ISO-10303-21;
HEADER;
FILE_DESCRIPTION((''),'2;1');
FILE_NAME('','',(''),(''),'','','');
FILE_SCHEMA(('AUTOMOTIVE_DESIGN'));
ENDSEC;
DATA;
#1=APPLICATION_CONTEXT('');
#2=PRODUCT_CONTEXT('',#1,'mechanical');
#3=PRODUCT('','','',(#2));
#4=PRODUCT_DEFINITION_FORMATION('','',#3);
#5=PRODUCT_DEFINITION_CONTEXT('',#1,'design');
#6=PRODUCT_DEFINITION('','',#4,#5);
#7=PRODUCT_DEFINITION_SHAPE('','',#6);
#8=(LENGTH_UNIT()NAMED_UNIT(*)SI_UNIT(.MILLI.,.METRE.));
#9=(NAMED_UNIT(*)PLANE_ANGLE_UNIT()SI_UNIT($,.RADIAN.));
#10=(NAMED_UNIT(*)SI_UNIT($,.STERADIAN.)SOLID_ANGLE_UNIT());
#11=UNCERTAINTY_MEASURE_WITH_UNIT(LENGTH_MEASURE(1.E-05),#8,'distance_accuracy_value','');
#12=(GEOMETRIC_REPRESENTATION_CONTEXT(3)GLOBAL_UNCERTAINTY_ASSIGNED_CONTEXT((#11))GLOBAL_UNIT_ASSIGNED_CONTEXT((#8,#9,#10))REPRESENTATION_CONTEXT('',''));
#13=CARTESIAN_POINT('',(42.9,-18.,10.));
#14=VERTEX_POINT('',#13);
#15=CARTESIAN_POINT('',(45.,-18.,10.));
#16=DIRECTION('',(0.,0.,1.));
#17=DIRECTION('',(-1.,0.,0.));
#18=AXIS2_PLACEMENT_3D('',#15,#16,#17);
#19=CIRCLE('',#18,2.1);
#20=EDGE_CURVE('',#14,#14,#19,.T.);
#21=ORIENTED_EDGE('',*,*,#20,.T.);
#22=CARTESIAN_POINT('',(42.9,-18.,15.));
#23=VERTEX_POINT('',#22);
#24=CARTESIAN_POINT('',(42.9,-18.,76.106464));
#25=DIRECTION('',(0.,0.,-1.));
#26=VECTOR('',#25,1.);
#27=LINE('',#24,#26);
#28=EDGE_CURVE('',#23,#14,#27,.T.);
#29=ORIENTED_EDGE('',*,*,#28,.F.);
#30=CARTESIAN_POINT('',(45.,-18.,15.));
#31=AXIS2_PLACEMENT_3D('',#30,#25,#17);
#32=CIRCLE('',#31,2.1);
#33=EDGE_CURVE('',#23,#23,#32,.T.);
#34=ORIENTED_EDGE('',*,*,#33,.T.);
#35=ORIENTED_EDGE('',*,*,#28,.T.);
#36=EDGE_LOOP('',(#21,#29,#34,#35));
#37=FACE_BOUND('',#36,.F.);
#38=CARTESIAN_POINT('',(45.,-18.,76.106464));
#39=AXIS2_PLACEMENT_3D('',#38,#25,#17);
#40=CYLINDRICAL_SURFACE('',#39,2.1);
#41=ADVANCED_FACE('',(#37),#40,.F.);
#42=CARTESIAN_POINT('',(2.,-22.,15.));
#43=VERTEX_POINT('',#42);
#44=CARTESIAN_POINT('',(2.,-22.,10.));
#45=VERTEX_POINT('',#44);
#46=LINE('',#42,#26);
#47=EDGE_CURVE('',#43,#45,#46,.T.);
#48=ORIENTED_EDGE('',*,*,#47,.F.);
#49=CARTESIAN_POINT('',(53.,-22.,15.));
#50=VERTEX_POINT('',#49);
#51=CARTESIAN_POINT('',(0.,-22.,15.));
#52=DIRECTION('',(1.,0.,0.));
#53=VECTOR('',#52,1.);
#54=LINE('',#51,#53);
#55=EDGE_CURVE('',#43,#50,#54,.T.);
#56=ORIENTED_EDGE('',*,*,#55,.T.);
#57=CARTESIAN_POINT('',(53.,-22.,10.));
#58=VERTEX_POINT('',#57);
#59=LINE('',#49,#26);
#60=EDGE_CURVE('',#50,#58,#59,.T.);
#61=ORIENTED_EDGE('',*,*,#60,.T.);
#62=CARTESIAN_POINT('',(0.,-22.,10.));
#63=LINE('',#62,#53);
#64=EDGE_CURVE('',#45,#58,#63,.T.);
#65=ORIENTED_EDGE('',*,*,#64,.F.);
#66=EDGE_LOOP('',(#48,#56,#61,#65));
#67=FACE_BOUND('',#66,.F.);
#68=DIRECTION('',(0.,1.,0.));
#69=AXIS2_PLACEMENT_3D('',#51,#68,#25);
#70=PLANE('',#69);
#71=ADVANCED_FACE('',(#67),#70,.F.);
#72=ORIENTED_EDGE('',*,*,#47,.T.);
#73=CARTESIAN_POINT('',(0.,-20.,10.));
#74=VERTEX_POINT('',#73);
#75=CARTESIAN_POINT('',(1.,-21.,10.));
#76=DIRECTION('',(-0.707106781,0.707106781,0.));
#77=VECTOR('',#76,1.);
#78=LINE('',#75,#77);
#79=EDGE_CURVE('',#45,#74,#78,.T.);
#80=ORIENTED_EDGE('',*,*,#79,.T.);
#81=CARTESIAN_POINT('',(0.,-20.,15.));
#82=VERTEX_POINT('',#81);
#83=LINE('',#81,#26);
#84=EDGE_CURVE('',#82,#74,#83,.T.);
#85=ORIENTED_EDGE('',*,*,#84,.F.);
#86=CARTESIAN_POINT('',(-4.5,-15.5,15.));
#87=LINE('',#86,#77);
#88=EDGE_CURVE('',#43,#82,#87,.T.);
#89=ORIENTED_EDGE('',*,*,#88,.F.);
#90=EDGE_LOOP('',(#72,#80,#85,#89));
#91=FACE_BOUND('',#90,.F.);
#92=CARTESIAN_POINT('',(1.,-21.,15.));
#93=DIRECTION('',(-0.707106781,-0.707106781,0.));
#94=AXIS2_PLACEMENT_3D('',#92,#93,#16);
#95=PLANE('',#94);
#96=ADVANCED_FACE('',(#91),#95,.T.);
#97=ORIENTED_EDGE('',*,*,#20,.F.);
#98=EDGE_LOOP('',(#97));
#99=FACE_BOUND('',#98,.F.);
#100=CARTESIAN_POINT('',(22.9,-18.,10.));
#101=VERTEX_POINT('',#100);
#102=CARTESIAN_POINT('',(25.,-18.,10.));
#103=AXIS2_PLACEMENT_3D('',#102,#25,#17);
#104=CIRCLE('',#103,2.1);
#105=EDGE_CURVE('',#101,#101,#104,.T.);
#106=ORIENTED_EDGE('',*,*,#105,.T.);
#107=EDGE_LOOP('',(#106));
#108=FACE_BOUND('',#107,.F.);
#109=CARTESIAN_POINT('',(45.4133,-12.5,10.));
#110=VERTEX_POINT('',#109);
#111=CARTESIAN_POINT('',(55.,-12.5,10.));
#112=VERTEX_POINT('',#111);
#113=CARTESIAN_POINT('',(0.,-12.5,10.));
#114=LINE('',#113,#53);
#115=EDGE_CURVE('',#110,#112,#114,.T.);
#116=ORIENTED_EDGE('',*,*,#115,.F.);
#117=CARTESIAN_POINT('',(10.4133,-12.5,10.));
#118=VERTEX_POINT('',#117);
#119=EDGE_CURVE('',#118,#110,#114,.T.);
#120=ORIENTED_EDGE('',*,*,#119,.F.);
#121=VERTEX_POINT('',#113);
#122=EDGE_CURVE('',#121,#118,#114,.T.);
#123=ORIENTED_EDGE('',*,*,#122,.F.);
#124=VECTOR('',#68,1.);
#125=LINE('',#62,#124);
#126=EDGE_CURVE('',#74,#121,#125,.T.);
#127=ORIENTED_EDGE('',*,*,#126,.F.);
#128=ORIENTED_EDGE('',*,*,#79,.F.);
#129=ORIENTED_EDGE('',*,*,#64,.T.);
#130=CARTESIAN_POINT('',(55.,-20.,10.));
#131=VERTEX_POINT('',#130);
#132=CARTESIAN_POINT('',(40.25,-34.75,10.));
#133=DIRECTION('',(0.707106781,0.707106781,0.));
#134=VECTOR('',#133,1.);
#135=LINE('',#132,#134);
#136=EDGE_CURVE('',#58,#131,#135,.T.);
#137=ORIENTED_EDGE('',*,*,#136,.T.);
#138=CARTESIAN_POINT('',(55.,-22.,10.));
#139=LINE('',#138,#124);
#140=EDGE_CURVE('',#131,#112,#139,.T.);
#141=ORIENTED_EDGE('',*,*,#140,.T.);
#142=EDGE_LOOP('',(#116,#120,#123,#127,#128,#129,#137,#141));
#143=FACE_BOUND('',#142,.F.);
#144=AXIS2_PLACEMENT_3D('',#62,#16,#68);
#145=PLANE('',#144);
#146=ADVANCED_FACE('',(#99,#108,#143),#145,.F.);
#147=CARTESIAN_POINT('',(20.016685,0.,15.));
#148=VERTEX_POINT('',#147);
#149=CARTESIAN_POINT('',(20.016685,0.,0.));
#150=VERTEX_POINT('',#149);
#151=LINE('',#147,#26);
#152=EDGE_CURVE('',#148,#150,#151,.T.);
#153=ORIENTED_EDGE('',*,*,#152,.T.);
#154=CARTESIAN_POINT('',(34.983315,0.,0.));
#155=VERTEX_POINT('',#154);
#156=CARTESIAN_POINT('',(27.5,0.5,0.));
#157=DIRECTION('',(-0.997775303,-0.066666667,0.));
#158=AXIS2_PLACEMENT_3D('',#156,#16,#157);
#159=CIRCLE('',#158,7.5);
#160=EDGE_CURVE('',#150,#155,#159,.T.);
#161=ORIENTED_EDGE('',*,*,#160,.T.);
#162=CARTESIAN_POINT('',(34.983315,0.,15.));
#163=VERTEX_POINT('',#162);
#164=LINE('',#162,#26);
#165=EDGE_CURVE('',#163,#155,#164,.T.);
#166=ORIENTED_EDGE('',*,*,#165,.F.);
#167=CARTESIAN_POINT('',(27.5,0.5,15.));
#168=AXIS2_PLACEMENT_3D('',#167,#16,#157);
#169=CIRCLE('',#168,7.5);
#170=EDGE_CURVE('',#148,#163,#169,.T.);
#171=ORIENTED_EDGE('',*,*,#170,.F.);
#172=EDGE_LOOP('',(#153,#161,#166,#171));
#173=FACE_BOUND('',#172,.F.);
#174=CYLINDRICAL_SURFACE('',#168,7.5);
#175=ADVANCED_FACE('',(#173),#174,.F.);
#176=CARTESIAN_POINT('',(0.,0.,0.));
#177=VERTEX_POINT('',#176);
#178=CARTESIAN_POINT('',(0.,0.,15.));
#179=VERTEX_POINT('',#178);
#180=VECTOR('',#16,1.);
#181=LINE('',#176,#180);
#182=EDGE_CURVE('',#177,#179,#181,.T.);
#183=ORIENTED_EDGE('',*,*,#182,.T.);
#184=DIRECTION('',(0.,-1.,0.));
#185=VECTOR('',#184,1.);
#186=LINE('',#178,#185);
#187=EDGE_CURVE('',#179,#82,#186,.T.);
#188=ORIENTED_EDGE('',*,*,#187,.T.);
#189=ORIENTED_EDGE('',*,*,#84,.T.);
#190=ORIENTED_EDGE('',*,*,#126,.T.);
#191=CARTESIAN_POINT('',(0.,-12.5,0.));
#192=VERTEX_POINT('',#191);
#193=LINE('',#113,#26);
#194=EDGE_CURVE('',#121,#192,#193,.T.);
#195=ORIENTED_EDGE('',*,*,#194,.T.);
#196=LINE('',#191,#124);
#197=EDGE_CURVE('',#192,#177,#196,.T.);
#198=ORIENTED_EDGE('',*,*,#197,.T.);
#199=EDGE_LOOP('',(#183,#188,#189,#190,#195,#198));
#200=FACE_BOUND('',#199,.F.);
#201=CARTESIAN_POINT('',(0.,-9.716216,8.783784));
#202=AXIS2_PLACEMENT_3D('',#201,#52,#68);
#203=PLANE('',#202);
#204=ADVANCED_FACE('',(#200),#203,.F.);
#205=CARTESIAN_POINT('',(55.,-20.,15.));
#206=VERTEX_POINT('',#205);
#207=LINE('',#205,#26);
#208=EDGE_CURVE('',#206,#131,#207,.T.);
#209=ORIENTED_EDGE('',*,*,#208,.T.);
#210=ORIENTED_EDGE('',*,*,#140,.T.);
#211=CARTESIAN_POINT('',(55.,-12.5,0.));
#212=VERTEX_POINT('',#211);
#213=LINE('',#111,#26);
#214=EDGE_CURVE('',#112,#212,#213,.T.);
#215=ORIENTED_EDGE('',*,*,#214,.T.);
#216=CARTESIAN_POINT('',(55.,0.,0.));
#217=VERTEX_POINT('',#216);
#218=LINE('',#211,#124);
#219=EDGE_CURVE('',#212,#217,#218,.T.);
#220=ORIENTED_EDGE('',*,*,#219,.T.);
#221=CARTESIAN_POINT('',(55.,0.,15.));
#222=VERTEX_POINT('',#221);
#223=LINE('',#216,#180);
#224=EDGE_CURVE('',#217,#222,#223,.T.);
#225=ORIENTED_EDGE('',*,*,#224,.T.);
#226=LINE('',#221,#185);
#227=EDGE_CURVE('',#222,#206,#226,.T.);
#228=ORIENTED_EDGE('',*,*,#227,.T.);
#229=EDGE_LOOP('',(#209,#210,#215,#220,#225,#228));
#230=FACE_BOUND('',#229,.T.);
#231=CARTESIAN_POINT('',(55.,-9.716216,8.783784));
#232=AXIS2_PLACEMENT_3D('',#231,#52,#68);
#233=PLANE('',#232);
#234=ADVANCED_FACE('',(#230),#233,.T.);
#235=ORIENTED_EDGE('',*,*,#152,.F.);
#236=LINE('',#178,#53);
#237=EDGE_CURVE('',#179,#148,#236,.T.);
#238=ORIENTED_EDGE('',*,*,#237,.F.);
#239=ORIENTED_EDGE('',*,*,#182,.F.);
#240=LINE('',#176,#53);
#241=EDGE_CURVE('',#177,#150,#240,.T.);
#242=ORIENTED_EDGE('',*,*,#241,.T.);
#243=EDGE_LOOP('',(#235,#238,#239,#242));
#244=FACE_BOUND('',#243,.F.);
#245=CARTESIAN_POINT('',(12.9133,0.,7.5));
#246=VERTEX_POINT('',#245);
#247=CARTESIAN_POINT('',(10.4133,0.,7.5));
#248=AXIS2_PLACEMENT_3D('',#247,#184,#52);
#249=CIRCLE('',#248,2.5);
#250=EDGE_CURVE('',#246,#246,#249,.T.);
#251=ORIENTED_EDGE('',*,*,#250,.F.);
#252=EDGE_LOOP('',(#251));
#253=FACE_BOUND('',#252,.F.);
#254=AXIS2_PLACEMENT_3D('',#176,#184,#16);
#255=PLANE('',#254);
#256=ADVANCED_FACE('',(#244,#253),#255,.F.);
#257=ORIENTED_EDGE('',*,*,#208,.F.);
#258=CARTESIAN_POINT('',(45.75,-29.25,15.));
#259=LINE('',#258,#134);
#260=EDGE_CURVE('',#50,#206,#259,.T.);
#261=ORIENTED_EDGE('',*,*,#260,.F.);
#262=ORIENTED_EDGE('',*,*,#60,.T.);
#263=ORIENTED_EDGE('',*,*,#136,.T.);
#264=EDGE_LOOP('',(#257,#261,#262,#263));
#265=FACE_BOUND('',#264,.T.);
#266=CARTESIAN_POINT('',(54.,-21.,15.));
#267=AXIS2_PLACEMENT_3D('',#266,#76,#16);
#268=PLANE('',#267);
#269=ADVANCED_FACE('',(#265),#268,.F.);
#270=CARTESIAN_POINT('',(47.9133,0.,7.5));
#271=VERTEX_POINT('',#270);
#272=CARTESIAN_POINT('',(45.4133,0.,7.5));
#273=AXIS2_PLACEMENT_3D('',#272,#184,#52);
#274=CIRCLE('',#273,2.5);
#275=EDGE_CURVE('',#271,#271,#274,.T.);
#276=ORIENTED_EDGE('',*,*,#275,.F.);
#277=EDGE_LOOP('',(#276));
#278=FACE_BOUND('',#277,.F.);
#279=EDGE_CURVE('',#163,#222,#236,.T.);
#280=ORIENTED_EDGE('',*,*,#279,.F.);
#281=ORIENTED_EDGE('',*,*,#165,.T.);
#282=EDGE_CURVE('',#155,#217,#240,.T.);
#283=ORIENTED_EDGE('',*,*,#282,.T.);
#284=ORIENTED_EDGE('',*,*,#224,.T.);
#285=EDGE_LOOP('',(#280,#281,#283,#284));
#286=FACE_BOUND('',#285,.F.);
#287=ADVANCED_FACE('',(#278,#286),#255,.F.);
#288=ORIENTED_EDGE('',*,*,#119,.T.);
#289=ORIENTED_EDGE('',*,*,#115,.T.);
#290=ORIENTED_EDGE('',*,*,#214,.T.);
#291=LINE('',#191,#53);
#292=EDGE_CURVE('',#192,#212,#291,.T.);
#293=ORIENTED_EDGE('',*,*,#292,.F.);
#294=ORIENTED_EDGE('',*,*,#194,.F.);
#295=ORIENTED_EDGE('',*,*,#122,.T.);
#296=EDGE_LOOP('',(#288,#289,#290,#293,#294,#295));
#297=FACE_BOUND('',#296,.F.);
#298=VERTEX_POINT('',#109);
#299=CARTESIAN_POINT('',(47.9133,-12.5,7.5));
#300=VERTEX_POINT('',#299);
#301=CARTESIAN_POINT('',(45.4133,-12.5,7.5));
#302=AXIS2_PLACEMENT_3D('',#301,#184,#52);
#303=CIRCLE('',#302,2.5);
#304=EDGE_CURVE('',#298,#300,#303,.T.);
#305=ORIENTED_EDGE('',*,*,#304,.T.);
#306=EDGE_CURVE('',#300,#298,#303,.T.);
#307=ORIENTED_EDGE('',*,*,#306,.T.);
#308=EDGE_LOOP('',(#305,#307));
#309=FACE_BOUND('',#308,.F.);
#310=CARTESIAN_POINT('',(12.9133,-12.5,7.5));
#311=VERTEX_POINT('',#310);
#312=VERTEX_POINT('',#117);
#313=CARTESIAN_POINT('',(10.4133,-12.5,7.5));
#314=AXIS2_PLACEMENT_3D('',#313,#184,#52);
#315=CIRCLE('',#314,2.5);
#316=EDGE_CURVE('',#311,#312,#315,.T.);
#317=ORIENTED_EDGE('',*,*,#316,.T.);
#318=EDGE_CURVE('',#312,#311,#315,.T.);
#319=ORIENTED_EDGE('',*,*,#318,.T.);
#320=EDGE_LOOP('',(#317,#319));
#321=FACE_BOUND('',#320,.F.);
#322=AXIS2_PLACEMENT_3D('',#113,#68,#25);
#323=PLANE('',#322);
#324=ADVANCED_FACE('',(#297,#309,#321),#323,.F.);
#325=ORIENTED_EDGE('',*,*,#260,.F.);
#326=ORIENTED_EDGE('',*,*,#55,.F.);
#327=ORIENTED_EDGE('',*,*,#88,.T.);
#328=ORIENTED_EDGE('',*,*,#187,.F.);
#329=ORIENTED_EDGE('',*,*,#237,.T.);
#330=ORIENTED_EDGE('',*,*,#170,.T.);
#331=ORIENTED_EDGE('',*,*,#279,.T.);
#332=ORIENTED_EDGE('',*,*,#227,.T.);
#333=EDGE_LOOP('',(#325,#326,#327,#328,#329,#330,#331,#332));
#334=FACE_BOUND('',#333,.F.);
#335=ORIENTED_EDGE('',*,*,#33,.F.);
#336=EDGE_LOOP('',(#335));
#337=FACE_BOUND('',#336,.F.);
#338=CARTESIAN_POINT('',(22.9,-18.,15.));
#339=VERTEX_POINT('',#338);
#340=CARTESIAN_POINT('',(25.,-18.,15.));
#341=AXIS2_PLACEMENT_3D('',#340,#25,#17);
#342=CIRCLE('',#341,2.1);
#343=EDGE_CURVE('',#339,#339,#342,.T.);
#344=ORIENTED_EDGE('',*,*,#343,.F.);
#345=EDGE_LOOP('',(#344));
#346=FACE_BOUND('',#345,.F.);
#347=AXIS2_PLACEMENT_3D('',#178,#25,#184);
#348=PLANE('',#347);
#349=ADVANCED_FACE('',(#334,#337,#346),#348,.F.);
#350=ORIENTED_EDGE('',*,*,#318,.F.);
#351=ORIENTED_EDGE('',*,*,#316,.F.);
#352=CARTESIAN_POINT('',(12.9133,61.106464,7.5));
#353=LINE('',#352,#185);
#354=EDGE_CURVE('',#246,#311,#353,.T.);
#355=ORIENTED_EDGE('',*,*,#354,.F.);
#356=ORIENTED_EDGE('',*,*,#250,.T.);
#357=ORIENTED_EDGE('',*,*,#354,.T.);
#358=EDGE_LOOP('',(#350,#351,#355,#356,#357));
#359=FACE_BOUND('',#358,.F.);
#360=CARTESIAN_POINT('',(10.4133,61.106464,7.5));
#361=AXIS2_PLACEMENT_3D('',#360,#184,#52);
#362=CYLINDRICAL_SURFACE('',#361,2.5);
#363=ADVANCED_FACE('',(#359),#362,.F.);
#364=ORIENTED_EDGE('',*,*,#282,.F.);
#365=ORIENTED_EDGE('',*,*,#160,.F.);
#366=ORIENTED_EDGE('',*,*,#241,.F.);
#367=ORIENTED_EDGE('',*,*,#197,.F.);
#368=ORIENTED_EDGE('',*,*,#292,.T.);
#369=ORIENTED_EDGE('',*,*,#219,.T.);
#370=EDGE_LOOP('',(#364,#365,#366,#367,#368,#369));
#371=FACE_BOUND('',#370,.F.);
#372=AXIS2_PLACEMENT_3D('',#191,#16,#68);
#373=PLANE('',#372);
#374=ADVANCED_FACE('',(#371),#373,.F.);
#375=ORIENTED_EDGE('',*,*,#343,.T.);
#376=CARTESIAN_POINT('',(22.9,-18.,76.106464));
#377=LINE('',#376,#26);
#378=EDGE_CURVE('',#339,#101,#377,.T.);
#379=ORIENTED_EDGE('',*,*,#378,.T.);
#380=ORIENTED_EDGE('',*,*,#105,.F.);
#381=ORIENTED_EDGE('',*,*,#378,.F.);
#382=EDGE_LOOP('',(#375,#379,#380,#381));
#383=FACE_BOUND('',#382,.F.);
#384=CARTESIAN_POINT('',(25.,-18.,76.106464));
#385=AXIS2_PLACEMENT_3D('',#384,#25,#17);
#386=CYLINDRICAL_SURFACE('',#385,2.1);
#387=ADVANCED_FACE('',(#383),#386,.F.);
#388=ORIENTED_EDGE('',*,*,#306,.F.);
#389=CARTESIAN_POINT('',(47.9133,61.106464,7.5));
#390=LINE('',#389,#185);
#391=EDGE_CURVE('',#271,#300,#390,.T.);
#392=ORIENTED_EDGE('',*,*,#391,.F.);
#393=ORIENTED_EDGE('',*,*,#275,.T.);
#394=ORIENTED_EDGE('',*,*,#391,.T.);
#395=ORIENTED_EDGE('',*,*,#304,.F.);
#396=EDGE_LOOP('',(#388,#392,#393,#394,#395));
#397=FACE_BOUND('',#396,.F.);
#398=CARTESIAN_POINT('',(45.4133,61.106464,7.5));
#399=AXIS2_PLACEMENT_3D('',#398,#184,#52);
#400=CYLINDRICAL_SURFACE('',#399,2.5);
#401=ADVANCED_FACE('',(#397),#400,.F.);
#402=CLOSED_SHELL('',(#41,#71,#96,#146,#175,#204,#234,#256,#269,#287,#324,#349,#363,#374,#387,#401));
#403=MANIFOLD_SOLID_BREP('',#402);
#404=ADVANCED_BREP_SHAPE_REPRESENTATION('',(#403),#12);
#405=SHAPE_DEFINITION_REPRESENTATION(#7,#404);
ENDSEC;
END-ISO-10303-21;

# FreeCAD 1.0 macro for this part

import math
import FreeCAD as App
import Part
import Sketcher
from FreeCAD import Vector
Q = App.Units.Quantity


def edges_at(feature, points):
    """Names of the edges that pass closest to the given points."""
    edges = feature.Shape.Edges
    near = lambda p: min(range(len(edges)), key=lambda i: edges[i].distToShape(Part.Vertex(*p))[0])
    return sorted({f"Edge{near(p) + 1}" for p in points})

doc = App.newDocument("Part")
params = doc.addObject("Spreadsheet::Sheet", "Params")
for row, (alias, value) in enumerate([
    ("sketch1_width", "22 mm"),
    ("sketch1_height", "15 mm"),
    ("sketch1_height2", "5 mm"),
    ("sketch1_width2", "12.5 mm"),
    ("pad1_length", "55 mm"),
    ("sketch2_radius", "7.5 mm"),
    ("pocket1_length", "60 mm"),
    ("sketch3_diameter", "4.2 mm"),
    ("hole_diameter", "4.2 mm"),
    ("sketch4_diameter", "5 mm"),
    ("hole2_diameter", "5 mm"),
    ("chamfer_size", "2 mm"),
    ("chamfer_size2", "2 mm"),
], start=1):
    params.set(f"A{row}", alias)
    params.set(f"B{row}", "=" + value)
    params.setAlias(f"B{row}", alias)

body = doc.addObject("PartDesign::Body", "Body")

sketch1 = body.newObject("Sketcher::SketchObject", "Sketch")
sketch1.AttachmentSupport = (doc.getObject("YZ_Plane"), [""])
sketch1.MapMode = "FlatFace"
sketch1.addGeometry(Part.LineSegment(Vector(-12, 0, 0), Vector(0, 0, 0)), False)
sketch1.addGeometry(Part.LineSegment(Vector(0, 0, 0), Vector(0, 15, 0)), False)
sketch1.addGeometry(Part.LineSegment(Vector(0, 15, 0), Vector(-22, 15, 0)), False)
sketch1.addGeometry(Part.LineSegment(Vector(-22, 15, 0), Vector(-22, 10, 0)), False)
sketch1.addGeometry(Part.LineSegment(Vector(-22, 10, 0), Vector(-12, 10, 0)), False)
sketch1.addGeometry(Part.LineSegment(Vector(-12, 10, 0), Vector(-12, 0, 0)), False)
sketch1.addConstraint(Sketcher.Constraint("Coincident", 0, 2, 1, 1))
sketch1.addConstraint(Sketcher.Constraint("Coincident", 1, 2, 2, 1))
sketch1.addConstraint(Sketcher.Constraint("Coincident", 2, 2, 3, 1))
sketch1.addConstraint(Sketcher.Constraint("Coincident", 3, 2, 4, 1))
sketch1.addConstraint(Sketcher.Constraint("Coincident", 4, 2, 5, 1))
sketch1.addConstraint(Sketcher.Constraint("Coincident", 5, 2, 0, 1))
sketch1.addConstraint(Sketcher.Constraint("Horizontal", 0))
sketch1.addConstraint(Sketcher.Constraint("Vertical", 1))
sketch1.addConstraint(Sketcher.Constraint("Horizontal", 2))
sketch1.addConstraint(Sketcher.Constraint("Vertical", 3))
sketch1.addConstraint(Sketcher.Constraint("Horizontal", 4))
sketch1.addConstraint(Sketcher.Constraint("Vertical", 5))
sketch1.addConstraint(Sketcher.Constraint("Coincident", 0, 2, -1, 1))
sketch1.addConstraint(Sketcher.Constraint("DistanceX", 2, 2, 2, 1, Q("22 mm")))
sketch1.addConstraint(Sketcher.Constraint("DistanceY", 1, 1, 1, 2, Q("15 mm")))
sketch1.addConstraint(Sketcher.Constraint("DistanceY", 3, 2, 3, 1, Q("5 mm")))
sketch1.addConstraint(Sketcher.Constraint("DistanceX", 0, 1, 0, 2, Q("12.5 mm")))
sketch1.setExpression("Constraints[13]", "Params.sketch1_width")
sketch1.setExpression("Constraints[14]", "Params.sketch1_height")
sketch1.setExpression("Constraints[15]", "Params.sketch1_height2")
sketch1.setExpression("Constraints[16]", "Params.sketch1_width2")
pad1 = body.newObject("PartDesign::Pad", "Pad")
pad1.Profile = sketch1
pad1.setExpression("Length", "Params.pad1_length")

sketch2 = body.newObject("Sketcher::SketchObject", "Sketch001")
sketch2.AttachmentSupport = (doc.getObject("XY_Plane"), [""])
sketch2.MapMode = "FlatFace"
sketch2.AttachmentOffset = App.Placement(Vector(0, 0, 15), App.Rotation())
sketch2.addGeometry(Part.ArcOfCircle(Part.Circle(Vector(27.5, 0.5, 0), Vector(0, 0, 1), 7.5), math.radians(-176), math.radians(-4)), False)
sketch2.addGeometry(Part.ArcOfCircle(Part.Circle(Vector(27.5, 0.5, 0), Vector(0, 0, 1), 7.5), math.radians(-3.82), math.radians(0)), False)
sketch2.addGeometry(Part.ArcOfCircle(Part.Circle(Vector(27.5, 0.5, 0), Vector(0, 0, 1), 7.5), math.radians(0), math.radians(184)), False)
sketch2.addConstraint(Sketcher.Constraint("Tangent", 0, 2, 1, 1))
sketch2.addConstraint(Sketcher.Constraint("Tangent", 1, 2, 2, 1))
sketch2.addConstraint(Sketcher.Constraint("Tangent", 2, 2, 0, 1))
sketch2.addConstraint(Sketcher.Constraint("PointOnObject", 0, 2, -1))
sketch2.addConstraint(Sketcher.Constraint("PointOnObject", 2, 2, -1))
sketch2.addConstraint(Sketcher.Constraint("Horizontal", 2, 3, 1, 2))
sketch2.addConstraint(Sketcher.Constraint("Radius", 0, Q("7.5 mm")))
sketch2.addConstraint(Sketcher.Constraint("DistanceX", -1, 1, 1, 2, Q("35 mm")))
sketch2.addConstraint(Sketcher.Constraint("DistanceY", -1, 1, 0, 3, Q("0.5 mm")))
sketch2.setExpression("Constraints[6]", "Params.sketch2_radius")
pocket1 = body.newObject("PartDesign::Pocket", "Pocket")
pocket1.Profile = sketch2
pocket1.setExpression("Length", "Params.pocket1_length")

sketch3 = body.newObject("Sketcher::SketchObject", "Sketch002")
sketch3.AttachmentSupport = (doc.getObject("XY_Plane"), [""])
sketch3.MapMode = "FlatFace"
sketch3.AttachmentOffset = App.Placement(Vector(0, 0, 15), App.Rotation())
sketch3.addGeometry(Part.Circle(Vector(25, -18, 0), Vector(0, 0, 1), 2.1), False)
sketch3.addGeometry(Part.Circle(Vector(45, -18, 0), Vector(0, 0, 1), 2.1), False)
sketch3.addConstraint(Sketcher.Constraint("Equal", 0, 1))
sketch3.addConstraint(Sketcher.Constraint("Horizontal", 0, 3, 1, 3))
sketch3.addConstraint(Sketcher.Constraint("Diameter", 0, Q("4.2 mm")))
sketch3.addConstraint(Sketcher.Constraint("DistanceX", -1, 1, 0, 3, Q("25 mm")))
sketch3.addConstraint(Sketcher.Constraint("DistanceY", 0, 3, -1, 1, Q("18 mm")))
sketch3.addConstraint(Sketcher.Constraint("DistanceX", -1, 1, 1, 3, Q("45 mm")))
sketch3.setExpression("Constraints[2]", "Params.sketch3_diameter")
doc.recompute()
hole = body.newObject("PartDesign::Hole", "Hole")
hole.Profile = sketch3
hole.ThreadType = "None"
hole.setExpression("Diameter", "Params.hole_diameter")
hole.DepthType = "ThroughAll"

sketch4 = body.newObject("Sketcher::SketchObject", "Sketch003")
sketch4.AttachmentSupport = (doc.getObject("XZ_Plane"), [""])
sketch4.MapMode = "FlatFace"
sketch4.addGeometry(Part.Circle(Vector(10.4, 7.5, 0), Vector(0, 0, 1), 2.5), False)
sketch4.addGeometry(Part.Circle(Vector(45.4, 7.5, 0), Vector(0, 0, 1), 2.5), False)
sketch4.addConstraint(Sketcher.Constraint("Equal", 0, 1))
sketch4.addConstraint(Sketcher.Constraint("Horizontal", 0, 3, 1, 3))
sketch4.addConstraint(Sketcher.Constraint("Diameter", 0, Q("5 mm")))
sketch4.addConstraint(Sketcher.Constraint("DistanceX", 0, 3, 1, 3, Q("35 mm")))
sketch4.addConstraint(Sketcher.Constraint("DistanceY", -1, 1, 0, 3, Q("7.5 mm")))
sketch4.addConstraint(Sketcher.Constraint("DistanceX", -1, 1, 0, 3, Q("10.4133 mm")))
sketch4.setExpression("Constraints[2]", "Params.sketch4_diameter")
doc.recompute()
hole2 = body.newObject("PartDesign::Hole", "Hole001")
hole2.Profile = sketch4
hole2.ThreadType = "None"
hole2.setExpression("Diameter", "Params.hole2_diameter")
hole2.DepthType = "ThroughAll"
hole2.Reversed = True
doc.recompute()

chamfer = body.newObject("PartDesign::Chamfer", "Chamfer")
chamfer.Base = (hole2, edges_at(hole2, [(0, -22, 12.5), (55, -22, 12.5)]))
chamfer.ChamferType = "Two distances"
chamfer.setExpression("Size", "Params.chamfer_size")
chamfer.setExpression("Size2", "Params.chamfer_size2")

doc.recompute()
